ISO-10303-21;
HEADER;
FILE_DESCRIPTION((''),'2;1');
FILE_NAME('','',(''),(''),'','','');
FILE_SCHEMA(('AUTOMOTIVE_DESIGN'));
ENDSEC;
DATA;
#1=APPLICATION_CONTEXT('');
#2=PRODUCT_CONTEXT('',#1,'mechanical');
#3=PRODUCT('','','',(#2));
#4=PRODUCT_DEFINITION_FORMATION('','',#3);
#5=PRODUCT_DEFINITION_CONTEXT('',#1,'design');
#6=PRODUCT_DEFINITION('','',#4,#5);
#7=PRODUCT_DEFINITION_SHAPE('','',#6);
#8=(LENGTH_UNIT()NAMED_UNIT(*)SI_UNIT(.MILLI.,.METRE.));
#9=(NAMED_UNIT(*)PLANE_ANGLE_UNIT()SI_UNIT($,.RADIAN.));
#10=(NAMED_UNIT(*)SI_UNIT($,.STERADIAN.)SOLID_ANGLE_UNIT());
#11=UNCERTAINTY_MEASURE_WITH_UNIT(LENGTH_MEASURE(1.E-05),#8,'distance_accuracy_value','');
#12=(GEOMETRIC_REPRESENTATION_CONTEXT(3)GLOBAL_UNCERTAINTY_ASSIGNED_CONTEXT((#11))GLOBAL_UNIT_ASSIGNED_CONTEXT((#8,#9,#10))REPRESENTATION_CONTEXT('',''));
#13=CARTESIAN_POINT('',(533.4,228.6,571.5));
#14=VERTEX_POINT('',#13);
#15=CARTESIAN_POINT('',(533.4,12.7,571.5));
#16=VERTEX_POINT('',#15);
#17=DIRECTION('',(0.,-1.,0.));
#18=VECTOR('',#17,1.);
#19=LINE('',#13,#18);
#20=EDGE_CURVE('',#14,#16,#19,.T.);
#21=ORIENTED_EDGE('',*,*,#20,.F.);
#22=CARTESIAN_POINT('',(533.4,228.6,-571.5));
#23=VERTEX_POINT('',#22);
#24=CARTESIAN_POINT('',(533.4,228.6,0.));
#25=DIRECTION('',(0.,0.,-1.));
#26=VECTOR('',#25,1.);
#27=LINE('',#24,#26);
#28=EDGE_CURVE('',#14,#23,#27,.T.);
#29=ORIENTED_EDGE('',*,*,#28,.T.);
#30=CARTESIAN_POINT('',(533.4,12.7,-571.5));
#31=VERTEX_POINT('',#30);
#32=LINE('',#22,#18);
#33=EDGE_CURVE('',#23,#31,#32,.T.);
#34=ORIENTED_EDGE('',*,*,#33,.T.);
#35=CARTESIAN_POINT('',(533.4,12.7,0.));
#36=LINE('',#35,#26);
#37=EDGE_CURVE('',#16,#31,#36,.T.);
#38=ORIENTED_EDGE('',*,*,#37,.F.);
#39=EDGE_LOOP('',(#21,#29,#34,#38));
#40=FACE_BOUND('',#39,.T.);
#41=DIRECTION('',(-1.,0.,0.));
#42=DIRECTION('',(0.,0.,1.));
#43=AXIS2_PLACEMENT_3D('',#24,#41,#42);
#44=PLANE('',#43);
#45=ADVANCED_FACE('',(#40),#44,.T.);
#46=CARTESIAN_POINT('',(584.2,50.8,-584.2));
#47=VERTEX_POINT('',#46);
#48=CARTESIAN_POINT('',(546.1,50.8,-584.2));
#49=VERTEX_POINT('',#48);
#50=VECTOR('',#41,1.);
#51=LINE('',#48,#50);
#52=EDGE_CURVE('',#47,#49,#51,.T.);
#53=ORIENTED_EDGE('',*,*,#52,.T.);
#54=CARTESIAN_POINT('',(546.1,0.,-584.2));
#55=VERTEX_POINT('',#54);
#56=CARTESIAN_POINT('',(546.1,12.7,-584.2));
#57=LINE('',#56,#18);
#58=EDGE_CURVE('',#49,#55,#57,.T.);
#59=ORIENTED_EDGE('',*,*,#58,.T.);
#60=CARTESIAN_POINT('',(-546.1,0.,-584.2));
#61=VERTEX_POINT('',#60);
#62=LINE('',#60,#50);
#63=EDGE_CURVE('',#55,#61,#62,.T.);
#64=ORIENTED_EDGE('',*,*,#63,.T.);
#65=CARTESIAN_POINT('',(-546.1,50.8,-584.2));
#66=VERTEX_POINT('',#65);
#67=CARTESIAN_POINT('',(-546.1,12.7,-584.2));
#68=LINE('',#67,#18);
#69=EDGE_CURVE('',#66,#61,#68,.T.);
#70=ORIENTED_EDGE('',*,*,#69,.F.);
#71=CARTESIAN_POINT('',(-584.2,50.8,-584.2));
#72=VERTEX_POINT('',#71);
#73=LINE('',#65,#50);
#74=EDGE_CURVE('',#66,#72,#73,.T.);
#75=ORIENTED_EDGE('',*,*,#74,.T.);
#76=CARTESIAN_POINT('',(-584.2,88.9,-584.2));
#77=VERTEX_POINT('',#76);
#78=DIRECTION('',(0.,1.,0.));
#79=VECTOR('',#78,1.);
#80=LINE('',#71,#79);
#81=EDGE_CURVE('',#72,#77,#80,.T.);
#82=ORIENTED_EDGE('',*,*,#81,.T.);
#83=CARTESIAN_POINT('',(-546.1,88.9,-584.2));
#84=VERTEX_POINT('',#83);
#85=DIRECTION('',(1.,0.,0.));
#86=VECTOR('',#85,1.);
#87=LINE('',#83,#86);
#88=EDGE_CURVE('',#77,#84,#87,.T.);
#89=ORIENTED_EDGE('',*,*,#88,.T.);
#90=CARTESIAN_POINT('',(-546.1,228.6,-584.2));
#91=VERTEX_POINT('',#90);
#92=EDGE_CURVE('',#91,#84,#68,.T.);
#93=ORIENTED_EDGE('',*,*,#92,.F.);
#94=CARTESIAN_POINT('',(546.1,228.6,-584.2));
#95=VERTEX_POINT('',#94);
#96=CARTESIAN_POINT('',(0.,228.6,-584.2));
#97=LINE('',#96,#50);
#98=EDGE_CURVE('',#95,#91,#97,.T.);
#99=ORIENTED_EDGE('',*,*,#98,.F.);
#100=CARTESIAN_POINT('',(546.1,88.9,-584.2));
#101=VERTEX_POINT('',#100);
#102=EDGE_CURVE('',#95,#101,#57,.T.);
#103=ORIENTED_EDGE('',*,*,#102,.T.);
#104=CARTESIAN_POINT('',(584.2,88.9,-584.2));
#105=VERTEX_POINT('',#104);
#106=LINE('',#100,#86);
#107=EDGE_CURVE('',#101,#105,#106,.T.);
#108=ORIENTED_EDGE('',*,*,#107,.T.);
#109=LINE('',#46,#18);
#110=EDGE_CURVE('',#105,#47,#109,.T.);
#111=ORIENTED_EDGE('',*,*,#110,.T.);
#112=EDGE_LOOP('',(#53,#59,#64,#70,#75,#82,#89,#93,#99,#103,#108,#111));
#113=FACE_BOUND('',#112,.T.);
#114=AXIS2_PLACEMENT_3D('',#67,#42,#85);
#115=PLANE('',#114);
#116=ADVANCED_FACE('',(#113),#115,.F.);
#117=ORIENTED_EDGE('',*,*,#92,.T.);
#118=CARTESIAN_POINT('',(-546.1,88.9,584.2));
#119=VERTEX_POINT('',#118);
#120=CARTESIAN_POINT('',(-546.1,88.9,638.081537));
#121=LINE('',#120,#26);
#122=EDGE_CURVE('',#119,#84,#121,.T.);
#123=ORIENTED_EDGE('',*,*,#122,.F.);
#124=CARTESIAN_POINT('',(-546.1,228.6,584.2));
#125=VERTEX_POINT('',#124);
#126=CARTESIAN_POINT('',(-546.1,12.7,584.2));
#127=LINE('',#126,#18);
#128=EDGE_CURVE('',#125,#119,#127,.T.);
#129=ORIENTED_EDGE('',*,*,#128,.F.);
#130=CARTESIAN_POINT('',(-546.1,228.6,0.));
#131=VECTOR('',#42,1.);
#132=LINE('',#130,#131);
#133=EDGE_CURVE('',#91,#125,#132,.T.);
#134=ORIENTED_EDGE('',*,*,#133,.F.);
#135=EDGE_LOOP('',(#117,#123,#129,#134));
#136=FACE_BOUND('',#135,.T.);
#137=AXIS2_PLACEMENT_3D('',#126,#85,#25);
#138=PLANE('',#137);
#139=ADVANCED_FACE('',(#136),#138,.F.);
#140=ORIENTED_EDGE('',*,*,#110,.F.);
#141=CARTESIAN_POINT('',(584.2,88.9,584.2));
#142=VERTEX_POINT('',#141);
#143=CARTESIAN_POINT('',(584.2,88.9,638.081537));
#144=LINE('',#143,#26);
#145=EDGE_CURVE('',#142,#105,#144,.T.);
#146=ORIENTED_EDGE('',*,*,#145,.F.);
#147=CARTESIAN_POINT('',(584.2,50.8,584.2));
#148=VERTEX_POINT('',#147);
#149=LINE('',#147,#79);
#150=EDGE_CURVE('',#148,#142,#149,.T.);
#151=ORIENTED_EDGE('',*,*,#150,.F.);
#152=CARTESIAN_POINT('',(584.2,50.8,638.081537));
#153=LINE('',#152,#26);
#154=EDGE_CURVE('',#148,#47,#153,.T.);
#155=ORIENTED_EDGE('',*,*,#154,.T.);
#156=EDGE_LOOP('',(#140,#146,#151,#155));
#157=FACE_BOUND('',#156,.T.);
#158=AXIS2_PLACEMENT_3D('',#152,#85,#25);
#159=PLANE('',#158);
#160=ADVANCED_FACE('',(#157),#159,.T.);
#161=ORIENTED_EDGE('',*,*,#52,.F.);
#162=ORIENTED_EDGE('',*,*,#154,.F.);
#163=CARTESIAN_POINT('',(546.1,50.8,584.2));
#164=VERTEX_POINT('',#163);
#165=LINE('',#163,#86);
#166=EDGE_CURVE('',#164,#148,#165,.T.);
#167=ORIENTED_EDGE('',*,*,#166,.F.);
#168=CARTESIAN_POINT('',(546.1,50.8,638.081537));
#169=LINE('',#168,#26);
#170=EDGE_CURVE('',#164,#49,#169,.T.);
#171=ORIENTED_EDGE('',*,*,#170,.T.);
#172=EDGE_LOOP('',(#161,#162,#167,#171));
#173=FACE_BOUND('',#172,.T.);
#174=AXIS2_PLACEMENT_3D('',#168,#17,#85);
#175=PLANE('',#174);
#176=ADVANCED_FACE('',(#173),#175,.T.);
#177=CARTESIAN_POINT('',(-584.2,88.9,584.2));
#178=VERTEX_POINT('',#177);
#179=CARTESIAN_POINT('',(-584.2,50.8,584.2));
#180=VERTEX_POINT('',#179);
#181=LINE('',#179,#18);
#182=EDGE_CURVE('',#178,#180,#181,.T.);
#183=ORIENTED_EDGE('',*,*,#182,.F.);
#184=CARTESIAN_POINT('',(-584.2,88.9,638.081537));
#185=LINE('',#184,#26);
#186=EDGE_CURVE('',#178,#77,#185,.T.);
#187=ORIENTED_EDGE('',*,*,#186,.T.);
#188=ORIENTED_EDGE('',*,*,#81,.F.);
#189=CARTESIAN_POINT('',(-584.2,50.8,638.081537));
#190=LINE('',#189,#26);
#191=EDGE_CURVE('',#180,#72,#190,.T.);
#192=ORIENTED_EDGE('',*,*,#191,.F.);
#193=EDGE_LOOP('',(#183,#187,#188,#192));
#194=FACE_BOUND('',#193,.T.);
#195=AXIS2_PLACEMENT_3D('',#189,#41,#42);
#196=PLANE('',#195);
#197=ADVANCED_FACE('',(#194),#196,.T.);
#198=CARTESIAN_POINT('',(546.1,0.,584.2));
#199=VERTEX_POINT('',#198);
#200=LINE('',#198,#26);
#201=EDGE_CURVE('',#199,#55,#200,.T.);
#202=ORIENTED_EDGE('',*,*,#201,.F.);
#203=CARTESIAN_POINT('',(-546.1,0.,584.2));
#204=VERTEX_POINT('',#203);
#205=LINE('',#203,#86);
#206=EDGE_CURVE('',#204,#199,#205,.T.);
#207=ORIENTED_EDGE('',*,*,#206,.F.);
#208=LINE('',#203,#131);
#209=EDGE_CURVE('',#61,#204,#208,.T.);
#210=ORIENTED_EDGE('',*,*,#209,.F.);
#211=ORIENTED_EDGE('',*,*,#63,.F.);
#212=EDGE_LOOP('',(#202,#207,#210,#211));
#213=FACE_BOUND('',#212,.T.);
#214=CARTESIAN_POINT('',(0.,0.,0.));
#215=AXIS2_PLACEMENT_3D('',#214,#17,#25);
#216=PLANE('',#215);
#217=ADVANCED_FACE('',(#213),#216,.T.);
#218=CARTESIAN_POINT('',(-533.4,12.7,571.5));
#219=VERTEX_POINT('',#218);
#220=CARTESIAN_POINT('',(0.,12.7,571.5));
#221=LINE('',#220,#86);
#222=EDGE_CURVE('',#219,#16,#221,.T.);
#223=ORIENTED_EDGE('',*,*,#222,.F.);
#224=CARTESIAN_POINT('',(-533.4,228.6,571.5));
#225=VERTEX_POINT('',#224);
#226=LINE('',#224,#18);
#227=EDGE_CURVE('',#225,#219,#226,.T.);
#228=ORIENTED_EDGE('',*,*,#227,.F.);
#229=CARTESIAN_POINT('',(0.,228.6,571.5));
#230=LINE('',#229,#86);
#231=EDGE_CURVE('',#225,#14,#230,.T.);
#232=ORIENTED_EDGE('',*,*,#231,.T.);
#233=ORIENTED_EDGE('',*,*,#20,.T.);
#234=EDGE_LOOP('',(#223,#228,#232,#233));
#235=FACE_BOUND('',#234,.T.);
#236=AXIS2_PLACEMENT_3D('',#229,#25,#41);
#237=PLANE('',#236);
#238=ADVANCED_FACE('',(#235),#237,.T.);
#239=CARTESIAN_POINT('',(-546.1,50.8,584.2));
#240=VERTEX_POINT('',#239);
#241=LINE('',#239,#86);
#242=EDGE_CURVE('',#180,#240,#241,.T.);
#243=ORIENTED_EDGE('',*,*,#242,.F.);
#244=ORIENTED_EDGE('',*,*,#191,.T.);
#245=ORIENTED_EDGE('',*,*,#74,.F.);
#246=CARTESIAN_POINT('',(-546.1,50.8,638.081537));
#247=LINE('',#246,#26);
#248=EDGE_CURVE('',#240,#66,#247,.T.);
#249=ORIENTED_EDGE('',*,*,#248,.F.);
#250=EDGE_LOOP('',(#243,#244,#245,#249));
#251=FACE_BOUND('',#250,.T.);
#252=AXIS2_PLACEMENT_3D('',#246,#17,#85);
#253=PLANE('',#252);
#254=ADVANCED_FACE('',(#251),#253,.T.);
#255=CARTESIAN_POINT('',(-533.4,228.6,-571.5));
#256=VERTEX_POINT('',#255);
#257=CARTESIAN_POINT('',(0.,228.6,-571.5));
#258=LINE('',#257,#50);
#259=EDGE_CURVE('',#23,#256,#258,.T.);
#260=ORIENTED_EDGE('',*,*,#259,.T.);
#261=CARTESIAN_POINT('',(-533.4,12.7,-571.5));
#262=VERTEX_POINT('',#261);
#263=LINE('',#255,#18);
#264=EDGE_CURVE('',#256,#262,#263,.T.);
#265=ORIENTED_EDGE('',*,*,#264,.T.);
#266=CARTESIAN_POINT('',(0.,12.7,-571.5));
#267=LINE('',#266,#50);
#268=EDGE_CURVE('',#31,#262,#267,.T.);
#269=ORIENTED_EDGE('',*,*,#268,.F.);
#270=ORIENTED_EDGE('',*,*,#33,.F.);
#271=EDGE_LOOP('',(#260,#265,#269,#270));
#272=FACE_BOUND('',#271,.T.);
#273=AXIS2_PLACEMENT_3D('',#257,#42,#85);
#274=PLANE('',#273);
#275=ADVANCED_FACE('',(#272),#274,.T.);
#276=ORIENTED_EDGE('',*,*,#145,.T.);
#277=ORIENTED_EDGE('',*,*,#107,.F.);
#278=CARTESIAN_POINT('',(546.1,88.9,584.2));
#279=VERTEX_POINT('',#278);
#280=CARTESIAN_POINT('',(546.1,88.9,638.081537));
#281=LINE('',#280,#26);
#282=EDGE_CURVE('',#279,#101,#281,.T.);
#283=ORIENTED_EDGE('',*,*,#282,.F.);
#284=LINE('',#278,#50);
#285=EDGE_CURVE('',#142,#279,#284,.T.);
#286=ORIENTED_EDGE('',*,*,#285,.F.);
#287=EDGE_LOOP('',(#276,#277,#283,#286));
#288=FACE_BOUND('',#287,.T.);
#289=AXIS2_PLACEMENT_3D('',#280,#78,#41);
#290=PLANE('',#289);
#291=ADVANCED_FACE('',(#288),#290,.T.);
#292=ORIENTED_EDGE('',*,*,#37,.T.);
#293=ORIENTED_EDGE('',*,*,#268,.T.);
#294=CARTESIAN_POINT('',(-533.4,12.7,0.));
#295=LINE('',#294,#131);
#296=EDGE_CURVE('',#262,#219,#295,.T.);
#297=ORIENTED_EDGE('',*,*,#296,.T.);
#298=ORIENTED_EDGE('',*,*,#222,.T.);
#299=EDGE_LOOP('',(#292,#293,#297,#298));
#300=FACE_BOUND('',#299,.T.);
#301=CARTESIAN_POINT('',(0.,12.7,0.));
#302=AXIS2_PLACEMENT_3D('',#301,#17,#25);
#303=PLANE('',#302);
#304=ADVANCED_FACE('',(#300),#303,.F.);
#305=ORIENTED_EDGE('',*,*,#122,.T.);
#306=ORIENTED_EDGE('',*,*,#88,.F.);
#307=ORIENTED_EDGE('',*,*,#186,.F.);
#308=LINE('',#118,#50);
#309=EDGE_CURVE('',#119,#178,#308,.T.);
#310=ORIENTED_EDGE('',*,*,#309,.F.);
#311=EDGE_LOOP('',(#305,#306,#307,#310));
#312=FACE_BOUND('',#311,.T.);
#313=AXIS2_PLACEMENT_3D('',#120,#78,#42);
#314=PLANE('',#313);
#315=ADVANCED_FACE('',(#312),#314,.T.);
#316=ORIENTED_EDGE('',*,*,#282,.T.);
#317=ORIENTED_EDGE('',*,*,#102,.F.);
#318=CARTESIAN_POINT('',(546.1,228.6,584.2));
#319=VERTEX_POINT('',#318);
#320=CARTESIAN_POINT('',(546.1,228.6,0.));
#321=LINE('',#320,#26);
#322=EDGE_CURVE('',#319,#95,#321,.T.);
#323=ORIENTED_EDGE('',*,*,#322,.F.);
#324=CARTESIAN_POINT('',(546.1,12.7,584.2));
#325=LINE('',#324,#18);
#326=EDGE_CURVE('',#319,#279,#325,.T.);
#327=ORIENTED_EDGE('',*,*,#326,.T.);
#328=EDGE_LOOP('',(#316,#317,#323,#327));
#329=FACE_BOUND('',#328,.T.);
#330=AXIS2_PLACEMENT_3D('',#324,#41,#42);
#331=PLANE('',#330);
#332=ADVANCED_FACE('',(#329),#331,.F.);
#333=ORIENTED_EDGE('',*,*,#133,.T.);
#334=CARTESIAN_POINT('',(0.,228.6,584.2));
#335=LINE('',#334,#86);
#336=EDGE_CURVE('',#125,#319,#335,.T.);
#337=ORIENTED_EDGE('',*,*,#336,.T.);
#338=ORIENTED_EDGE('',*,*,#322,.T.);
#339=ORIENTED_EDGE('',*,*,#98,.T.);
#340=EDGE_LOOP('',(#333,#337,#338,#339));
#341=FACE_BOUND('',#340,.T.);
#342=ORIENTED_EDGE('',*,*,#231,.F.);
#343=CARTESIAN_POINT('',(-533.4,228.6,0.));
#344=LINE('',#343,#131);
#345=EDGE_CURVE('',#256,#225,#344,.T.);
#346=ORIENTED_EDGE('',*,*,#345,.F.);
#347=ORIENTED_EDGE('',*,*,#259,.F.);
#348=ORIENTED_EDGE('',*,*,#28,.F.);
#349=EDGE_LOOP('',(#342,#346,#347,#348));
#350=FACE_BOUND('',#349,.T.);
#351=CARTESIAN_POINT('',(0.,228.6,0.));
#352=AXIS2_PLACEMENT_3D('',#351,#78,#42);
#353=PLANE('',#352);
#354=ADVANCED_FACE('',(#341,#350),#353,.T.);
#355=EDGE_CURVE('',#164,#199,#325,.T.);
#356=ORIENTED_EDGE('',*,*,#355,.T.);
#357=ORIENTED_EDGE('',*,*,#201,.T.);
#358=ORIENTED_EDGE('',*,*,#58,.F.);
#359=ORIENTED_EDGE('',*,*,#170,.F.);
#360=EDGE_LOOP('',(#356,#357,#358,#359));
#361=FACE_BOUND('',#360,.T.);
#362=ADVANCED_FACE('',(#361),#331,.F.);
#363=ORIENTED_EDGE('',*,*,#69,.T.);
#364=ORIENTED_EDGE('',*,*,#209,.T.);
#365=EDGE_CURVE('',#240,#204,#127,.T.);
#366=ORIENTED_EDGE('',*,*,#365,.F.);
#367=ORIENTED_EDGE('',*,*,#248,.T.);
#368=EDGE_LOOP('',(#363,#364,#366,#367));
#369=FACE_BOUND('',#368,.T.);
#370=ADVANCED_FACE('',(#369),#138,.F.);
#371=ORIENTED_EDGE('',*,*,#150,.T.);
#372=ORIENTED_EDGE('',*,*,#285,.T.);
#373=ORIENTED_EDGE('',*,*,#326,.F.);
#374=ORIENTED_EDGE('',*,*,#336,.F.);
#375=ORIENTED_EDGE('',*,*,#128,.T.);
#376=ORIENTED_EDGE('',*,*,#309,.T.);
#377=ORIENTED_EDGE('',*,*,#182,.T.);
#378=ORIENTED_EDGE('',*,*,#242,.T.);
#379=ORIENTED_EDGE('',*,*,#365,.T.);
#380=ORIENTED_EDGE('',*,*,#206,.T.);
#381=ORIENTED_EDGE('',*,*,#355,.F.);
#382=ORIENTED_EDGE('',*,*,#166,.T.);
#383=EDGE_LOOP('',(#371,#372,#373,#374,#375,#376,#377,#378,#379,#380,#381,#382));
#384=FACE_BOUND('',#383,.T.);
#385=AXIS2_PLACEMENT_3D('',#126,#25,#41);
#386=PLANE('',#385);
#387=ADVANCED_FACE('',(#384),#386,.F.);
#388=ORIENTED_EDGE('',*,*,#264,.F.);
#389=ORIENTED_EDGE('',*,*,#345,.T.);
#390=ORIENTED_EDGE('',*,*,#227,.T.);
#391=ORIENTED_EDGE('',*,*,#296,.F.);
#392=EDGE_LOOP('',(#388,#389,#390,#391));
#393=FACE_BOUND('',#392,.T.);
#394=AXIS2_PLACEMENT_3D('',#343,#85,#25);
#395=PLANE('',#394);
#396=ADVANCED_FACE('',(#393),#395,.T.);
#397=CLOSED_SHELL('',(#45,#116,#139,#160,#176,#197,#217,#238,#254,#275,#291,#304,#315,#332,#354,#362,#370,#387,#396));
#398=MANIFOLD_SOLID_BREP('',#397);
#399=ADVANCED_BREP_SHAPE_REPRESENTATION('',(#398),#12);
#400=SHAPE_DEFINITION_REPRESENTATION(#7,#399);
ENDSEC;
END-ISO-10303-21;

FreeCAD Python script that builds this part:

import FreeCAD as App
import Part
import Sketcher
from FreeCAD import Vector
Q = App.Units.Quantity


def add_polygon(sketch, points):
    """Adds a closed chain of lines whose ends are joined by coincident constraints."""
    first, n = sketch.GeometryCount, len(points)
    for a, b in zip(points, points[1:] + points[:1]):
        sketch.addGeometry(Part.LineSegment(App.Vector(*a, 0), App.Vector(*b, 0)), False)
    for i in range(n):
        sketch.addConstraint(Sketcher.Constraint("Coincident", first + i, 2, first + (i + 1) % n, 1))

doc = App.newDocument("Part")
body = doc.addObject("PartDesign::Body", "Body")

# Sketch on XZ plane
sketch1 = body.newObject("Sketcher::SketchObject", "Sketch")
sketch1.AttachmentSupport = (doc.getObject("XZ_Plane"), [""])
sketch1.MapMode = "FlatFace"
add_polygon(sketch1, [(-546, -584), (-546, 584), (546, 584), (546, -584)])  # lines 0-3
sketch1.addConstraint([
    Sketcher.Constraint("Vertical", 0),
    Sketcher.Constraint("Horizontal", 1),
    Sketcher.Constraint("Vertical", 2),
    Sketcher.Constraint("Horizontal", 3),
    Sketcher.Constraint("Symmetric", 0, 2, 2, 2, -1, 1),
    Sketcher.Constraint("DistanceX", 1, 1, 1, 2, Q("43 in")),
    Sketcher.Constraint("DistanceY", 0, 1, 0, 2, Q("46 in")),
])
pad1 = body.newObject("PartDesign::Pad", "Pad")
pad1.Profile = sketch1
pad1.Length = Q("0.5 in")
pad1.Reversed = True

# Sketch on XZ plane
sketch2 = body.newObject("Sketcher::SketchObject", "Sketch001")
sketch2.AttachmentSupport = (doc.getObject("XZ_Plane"), [""])
sketch2.MapMode = "FlatFace"
sketch2.AttachmentOffset = App.Placement(Vector(0, 0, -0.5 * 25.4), App.Rotation())
add_polygon(sketch2, [(-546, -584), (-546, 584), (546, 584), (546, -584)])  # lines 0-3
add_polygon(sketch2, [(533, 572), (-533, 572), (-533, -572), (533, -572)])  # lines 4-7
sketch2.addConstraint([
    Sketcher.Constraint("Vertical", 0),
    Sketcher.Constraint("Horizontal", 1),
    Sketcher.Constraint("Vertical", 2),
    Sketcher.Constraint("Horizontal", 3),
    Sketcher.Constraint("Horizontal", 4),
    Sketcher.Constraint("Vertical", 5),
    Sketcher.Constraint("Horizontal", 6),
    Sketcher.Constraint("Vertical", 7),
    Sketcher.Constraint("Symmetric", 0, 2, 2, 2, -1, 1),
    Sketcher.Constraint("Symmetric", 4, 2, 6, 2, -1, 1),
    Sketcher.Constraint("DistanceX", 1, 1, 1, 2, Q("43 in")),
    Sketcher.Constraint("DistanceX", 4, 2, 4, 1, Q("42 in")),
    Sketcher.Constraint("DistanceY", 0, 1, 0, 2, Q("46 in")),
    Sketcher.Constraint("DistanceY", 5, 2, 5, 1, Q("45 in")),
])
pad2 = body.newObject("PartDesign::Pad", "Pad001")
pad2.Profile = sketch2
pad2.Length = Q("8.5 in")
pad2.Reversed = True

# Sketch on XY plane
sketch3 = body.newObject("Sketcher::SketchObject", "Sketch002")
sketch3.AttachmentSupport = (doc.getObject("XY_Plane"), [""])
sketch3.MapMode = "FlatFace"
sketch3.AttachmentOffset = App.Placement(Vector(0, 0, -23 * 25.4), App.Rotation())
add_polygon(sketch3, [(-546, 89), (-546, 51), (-584, 51), (-584, 89)])  # lines 0-3
add_polygon(sketch3, [(584, 89), (584, 51), (546, 51), (546, 89)])  # lines 4-7
sketch3.addConstraint([
    Sketcher.Constraint("Vertical", 0),
    Sketcher.Constraint("Horizontal", 1),
    Sketcher.Constraint("Vertical", 2),
    Sketcher.Constraint("Horizontal", 3),
    Sketcher.Constraint("Vertical", 4),
    Sketcher.Constraint("Horizontal", 5),
    Sketcher.Constraint("Vertical", 6),
    Sketcher.Constraint("Horizontal", 7),
    Sketcher.Constraint("Symmetric", 1, 2, 4, 2, -2),
    Sketcher.Constraint("Symmetric", 3, 2, 6, 2, -2),
    Sketcher.Constraint("Equal", 7, 0),
    Sketcher.Constraint("DistanceX", 1, 2, 1, 1, Q("1.5 in")),
    Sketcher.Constraint("DistanceY", -1, 1, 0, 2, Q("2 in")),
    Sketcher.Constraint("DistanceX", 1, 2, -1, 1, Q("23 in")),
])
pad3 = body.newObject("PartDesign::Pad", "Pad002")
pad3.Profile = sketch3
pad3.Length = Q("46 in")

doc.recompute()
